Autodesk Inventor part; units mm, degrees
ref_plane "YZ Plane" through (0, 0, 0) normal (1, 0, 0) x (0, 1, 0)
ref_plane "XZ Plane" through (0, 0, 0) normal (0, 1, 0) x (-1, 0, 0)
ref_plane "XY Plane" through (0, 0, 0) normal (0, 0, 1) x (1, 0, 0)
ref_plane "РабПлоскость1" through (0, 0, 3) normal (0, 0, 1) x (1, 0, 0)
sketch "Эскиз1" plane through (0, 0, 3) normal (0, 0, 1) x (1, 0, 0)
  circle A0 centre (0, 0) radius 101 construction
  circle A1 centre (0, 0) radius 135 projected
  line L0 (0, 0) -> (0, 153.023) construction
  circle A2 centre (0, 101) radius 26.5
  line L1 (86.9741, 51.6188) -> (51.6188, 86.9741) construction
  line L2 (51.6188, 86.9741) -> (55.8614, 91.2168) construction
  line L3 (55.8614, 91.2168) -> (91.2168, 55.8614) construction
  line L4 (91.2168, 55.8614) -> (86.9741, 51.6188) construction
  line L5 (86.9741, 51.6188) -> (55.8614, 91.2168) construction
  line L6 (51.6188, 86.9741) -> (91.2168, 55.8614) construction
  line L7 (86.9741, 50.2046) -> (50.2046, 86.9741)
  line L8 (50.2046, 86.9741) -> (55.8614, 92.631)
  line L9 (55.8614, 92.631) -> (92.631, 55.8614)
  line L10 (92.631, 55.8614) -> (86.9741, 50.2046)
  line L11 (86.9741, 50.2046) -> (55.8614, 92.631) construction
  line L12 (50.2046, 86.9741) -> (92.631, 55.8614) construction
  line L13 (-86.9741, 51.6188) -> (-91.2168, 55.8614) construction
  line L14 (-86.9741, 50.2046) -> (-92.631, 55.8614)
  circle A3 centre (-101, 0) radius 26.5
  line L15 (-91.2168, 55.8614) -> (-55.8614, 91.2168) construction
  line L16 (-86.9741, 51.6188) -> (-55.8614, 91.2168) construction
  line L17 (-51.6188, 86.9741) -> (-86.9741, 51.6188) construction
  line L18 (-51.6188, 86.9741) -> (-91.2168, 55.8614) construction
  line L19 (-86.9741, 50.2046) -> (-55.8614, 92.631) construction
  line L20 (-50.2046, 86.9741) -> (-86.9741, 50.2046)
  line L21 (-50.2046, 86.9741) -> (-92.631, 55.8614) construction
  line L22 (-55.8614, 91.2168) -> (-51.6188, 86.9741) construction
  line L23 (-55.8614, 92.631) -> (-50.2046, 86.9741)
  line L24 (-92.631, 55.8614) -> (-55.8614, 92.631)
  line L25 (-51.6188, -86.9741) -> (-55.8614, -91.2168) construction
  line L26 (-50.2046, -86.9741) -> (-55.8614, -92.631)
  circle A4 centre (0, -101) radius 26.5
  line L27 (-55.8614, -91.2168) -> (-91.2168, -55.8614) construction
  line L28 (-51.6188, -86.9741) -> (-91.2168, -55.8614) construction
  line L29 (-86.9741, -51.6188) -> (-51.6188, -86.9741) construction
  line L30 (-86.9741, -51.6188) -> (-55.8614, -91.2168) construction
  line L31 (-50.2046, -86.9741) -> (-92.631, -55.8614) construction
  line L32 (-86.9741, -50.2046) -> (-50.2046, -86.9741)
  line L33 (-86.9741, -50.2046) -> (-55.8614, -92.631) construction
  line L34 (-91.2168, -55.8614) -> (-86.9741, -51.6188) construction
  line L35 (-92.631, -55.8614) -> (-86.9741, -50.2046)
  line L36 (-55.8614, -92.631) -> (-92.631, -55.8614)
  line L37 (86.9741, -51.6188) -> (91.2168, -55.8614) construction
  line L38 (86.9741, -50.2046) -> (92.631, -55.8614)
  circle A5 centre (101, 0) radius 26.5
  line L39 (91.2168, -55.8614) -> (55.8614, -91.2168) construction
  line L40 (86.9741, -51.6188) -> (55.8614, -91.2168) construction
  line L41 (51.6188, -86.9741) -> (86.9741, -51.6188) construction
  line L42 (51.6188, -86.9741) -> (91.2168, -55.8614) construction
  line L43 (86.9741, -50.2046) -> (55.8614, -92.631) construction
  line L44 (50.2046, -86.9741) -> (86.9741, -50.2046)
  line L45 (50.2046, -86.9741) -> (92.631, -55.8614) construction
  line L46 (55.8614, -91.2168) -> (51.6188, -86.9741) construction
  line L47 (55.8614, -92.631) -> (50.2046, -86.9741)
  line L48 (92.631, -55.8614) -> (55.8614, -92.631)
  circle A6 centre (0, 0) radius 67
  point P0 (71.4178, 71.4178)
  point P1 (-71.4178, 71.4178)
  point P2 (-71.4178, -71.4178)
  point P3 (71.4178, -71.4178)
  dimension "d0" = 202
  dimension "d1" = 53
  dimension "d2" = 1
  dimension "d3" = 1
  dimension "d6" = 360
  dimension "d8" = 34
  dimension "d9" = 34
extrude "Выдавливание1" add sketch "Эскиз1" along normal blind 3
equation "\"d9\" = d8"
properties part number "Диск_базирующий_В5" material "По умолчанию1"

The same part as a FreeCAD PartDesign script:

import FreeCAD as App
import Part
import Sketcher

V = App.Vector

doc = App.newDocument("Part")
body = doc.addObject("PartDesign::Body", "Body")

sketch1 = body.newObject("Sketcher::SketchObject", "Sketch")
sketch1.AttachmentSupport = (doc.getObject("XY_Plane"), [""])
sketch1.MapMode = "FlatFace"
sketch1.AttachmentOffset = App.Placement(V(0, 0, 3), App.Rotation())
sketch1.addGeometry([
    Part.Circle(V(0, 0, 0), V(0, 0, 1), 135),
    Part.LineSegment(V(-86.9741, -50.2046, 0), V(-50.2046, -86.9741, 0)),
    Part.LineSegment(V(-50.2046, -86.9741, 0), V(-55.8614, -92.631, 0)),
    Part.LineSegment(V(-55.8614, -92.631, 0), V(-92.631, -55.8614, 0)),
    Part.LineSegment(V(-92.631, -55.8614, 0), V(-86.9741, -50.2046, 0)),
    Part.Circle(V(0, -101, 0), V(0, 0, 1), 26.5),
    Part.LineSegment(V(50.2046, -86.9741, 0), V(86.9741, -50.2046, 0)),
    Part.LineSegment(V(86.9741, -50.2046, 0), V(92.631, -55.8614, 0)),
    Part.LineSegment(V(92.631, -55.8614, 0), V(55.8614, -92.631, 0)),
    Part.LineSegment(V(55.8614, -92.631, 0), V(50.2046, -86.9741, 0)),
    Part.Circle(V(-101, 0, 0), V(0, 0, 1), 26.5),
    Part.LineSegment(V(-50.2046, 86.9741, 0), V(-86.9741, 50.2046, 0)),
    Part.LineSegment(V(-86.9741, 50.2046, 0), V(-92.631, 55.8614, 0)),
    Part.LineSegment(V(-92.631, 55.8614, 0), V(-55.8614, 92.631, 0)),
    Part.LineSegment(V(-55.8614, 92.631, 0), V(-50.2046, 86.9741, 0)),
    Part.Circle(V(0, 0, 0), V(0, 0, 1), 67),
    Part.Circle(V(101, 0, 0), V(0, 0, 1), 26.5),
    Part.Circle(V(0, 101, 0), V(0, 0, 1), 26.5),
    Part.LineSegment(V(92.631, 55.8614, 0), V(86.9741, 50.2046, 0)),
    Part.LineSegment(V(86.9741, 50.2046, 0), V(50.2046, 86.9741, 0)),
    Part.LineSegment(V(50.2046, 86.9741, 0), V(55.8614, 92.631, 0)),
    Part.LineSegment(V(55.8614, 92.631, 0), V(92.631, 55.8614, 0)),
], False)
sketch1.addConstraint([
    Sketcher.Constraint("Coincident", 1, 2, 2, 1),
    Sketcher.Constraint("Coincident", 2, 2, 3, 1),
    Sketcher.Constraint("Coincident", 3, 2, 4, 1),
    Sketcher.Constraint("Coincident", 4, 2, 1, 1),
    Sketcher.Constraint("Coincident", 6, 2, 7, 1),
    Sketcher.Constraint("Coincident", 7, 2, 8, 1),
    Sketcher.Constraint("Coincident", 8, 2, 9, 1),
    Sketcher.Constraint("Coincident", 9, 2, 6, 1),
    Sketcher.Constraint("Coincident", 11, 2, 12, 1),
    Sketcher.Constraint("Coincident", 12, 2, 13, 1),
    Sketcher.Constraint("Coincident", 13, 2, 14, 1),
    Sketcher.Constraint("Coincident", 14, 2, 11, 1),
    Sketcher.Constraint("Coincident", 18, 2, 19, 1),
    Sketcher.Constraint("Coincident", 19, 2, 20, 1),
    Sketcher.Constraint("Coincident", 20, 2, 21, 1),
    Sketcher.Constraint("Coincident", 21, 2, 18, 1),
    Sketcher.Constraint("Coincident", 0, 3, -1, 1),
    Sketcher.Constraint("Coincident", 15, 3, -1, 1),
    Sketcher.Constraint("Equal", 5, 10),
    Sketcher.Constraint("Equal", 10, 16),
    Sketcher.Constraint("Equal", 16, 17),
    Sketcher.Constraint("Symmetric", 10, 3, 16, 3, -1, 1),
    Sketcher.Constraint("Symmetric", 5, 3, 17, 3, -1, 1),
    Sketcher.Constraint("Symmetric", 6, 2, 11, 2, -1, 1),
    Sketcher.Constraint("Symmetric", 7, 2, 12, 2, -1, 1),
    Sketcher.Constraint("Symmetric", 8, 2, 13, 2, -1, 1),
    Sketcher.Constraint("Symmetric", 9, 2, 14, 2, -1, 1),
    Sketcher.Constraint("Symmetric", 4, 2, 18, 2, -1, 1),
    Sketcher.Constraint("Symmetric", 1, 2, 19, 2, -1, 1),
    Sketcher.Constraint("Symmetric", 2, 2, 20, 2, -1, 1),
    Sketcher.Constraint("Symmetric", 3, 2, 21, 2, -1, 1),
    Sketcher.Constraint("Symmetric", 4, 2, 6, 2, -2),
    Sketcher.Constraint("Symmetric", 3, 2, 7, 2, -2),
    Sketcher.Constraint("Symmetric", 2, 2, 8, 2, -2),
    Sketcher.Constraint("Symmetric", 1, 2, 9, 2, -2),
    Sketcher.Constraint("PointOnObject", 5, 3, -2),
    Sketcher.Constraint("PointOnObject", 10, 3, -1),
    Sketcher.Constraint("Perpendicular", 1, 2),
    Sketcher.Constraint("Perpendicular", 2, 3),
    Sketcher.Constraint("Perpendicular", 3, 4),
    Sketcher.Constraint("Parallel", 4, 6),
    Sketcher.Constraint("Diameter", 5, 53.0),
    Sketcher.Constraint("Diameter", 0, 270.0),
    Sketcher.Constraint("Diameter", 15, 134.0),
    Sketcher.Constraint("DistanceX", 10, 3, 16, 3, 202.0),
    Sketcher.Constraint("DistanceY", 5, 3, 17, 3, 202.0),
    Sketcher.Constraint("Distance", 1, 52.0),
    Sketcher.Constraint("Distance", 2, 8.0),
    Sketcher.Constraint("DistanceY", 1, 2, -1, 1, 86.974),
    Sketcher.Constraint("DistanceX", 3, 2, -1, 1, 92.631),
])
pad1 = body.newObject("PartDesign::Pad", "Pad")
pad1.Profile = sketch1
pad1.Length = 3

doc.recompute()
